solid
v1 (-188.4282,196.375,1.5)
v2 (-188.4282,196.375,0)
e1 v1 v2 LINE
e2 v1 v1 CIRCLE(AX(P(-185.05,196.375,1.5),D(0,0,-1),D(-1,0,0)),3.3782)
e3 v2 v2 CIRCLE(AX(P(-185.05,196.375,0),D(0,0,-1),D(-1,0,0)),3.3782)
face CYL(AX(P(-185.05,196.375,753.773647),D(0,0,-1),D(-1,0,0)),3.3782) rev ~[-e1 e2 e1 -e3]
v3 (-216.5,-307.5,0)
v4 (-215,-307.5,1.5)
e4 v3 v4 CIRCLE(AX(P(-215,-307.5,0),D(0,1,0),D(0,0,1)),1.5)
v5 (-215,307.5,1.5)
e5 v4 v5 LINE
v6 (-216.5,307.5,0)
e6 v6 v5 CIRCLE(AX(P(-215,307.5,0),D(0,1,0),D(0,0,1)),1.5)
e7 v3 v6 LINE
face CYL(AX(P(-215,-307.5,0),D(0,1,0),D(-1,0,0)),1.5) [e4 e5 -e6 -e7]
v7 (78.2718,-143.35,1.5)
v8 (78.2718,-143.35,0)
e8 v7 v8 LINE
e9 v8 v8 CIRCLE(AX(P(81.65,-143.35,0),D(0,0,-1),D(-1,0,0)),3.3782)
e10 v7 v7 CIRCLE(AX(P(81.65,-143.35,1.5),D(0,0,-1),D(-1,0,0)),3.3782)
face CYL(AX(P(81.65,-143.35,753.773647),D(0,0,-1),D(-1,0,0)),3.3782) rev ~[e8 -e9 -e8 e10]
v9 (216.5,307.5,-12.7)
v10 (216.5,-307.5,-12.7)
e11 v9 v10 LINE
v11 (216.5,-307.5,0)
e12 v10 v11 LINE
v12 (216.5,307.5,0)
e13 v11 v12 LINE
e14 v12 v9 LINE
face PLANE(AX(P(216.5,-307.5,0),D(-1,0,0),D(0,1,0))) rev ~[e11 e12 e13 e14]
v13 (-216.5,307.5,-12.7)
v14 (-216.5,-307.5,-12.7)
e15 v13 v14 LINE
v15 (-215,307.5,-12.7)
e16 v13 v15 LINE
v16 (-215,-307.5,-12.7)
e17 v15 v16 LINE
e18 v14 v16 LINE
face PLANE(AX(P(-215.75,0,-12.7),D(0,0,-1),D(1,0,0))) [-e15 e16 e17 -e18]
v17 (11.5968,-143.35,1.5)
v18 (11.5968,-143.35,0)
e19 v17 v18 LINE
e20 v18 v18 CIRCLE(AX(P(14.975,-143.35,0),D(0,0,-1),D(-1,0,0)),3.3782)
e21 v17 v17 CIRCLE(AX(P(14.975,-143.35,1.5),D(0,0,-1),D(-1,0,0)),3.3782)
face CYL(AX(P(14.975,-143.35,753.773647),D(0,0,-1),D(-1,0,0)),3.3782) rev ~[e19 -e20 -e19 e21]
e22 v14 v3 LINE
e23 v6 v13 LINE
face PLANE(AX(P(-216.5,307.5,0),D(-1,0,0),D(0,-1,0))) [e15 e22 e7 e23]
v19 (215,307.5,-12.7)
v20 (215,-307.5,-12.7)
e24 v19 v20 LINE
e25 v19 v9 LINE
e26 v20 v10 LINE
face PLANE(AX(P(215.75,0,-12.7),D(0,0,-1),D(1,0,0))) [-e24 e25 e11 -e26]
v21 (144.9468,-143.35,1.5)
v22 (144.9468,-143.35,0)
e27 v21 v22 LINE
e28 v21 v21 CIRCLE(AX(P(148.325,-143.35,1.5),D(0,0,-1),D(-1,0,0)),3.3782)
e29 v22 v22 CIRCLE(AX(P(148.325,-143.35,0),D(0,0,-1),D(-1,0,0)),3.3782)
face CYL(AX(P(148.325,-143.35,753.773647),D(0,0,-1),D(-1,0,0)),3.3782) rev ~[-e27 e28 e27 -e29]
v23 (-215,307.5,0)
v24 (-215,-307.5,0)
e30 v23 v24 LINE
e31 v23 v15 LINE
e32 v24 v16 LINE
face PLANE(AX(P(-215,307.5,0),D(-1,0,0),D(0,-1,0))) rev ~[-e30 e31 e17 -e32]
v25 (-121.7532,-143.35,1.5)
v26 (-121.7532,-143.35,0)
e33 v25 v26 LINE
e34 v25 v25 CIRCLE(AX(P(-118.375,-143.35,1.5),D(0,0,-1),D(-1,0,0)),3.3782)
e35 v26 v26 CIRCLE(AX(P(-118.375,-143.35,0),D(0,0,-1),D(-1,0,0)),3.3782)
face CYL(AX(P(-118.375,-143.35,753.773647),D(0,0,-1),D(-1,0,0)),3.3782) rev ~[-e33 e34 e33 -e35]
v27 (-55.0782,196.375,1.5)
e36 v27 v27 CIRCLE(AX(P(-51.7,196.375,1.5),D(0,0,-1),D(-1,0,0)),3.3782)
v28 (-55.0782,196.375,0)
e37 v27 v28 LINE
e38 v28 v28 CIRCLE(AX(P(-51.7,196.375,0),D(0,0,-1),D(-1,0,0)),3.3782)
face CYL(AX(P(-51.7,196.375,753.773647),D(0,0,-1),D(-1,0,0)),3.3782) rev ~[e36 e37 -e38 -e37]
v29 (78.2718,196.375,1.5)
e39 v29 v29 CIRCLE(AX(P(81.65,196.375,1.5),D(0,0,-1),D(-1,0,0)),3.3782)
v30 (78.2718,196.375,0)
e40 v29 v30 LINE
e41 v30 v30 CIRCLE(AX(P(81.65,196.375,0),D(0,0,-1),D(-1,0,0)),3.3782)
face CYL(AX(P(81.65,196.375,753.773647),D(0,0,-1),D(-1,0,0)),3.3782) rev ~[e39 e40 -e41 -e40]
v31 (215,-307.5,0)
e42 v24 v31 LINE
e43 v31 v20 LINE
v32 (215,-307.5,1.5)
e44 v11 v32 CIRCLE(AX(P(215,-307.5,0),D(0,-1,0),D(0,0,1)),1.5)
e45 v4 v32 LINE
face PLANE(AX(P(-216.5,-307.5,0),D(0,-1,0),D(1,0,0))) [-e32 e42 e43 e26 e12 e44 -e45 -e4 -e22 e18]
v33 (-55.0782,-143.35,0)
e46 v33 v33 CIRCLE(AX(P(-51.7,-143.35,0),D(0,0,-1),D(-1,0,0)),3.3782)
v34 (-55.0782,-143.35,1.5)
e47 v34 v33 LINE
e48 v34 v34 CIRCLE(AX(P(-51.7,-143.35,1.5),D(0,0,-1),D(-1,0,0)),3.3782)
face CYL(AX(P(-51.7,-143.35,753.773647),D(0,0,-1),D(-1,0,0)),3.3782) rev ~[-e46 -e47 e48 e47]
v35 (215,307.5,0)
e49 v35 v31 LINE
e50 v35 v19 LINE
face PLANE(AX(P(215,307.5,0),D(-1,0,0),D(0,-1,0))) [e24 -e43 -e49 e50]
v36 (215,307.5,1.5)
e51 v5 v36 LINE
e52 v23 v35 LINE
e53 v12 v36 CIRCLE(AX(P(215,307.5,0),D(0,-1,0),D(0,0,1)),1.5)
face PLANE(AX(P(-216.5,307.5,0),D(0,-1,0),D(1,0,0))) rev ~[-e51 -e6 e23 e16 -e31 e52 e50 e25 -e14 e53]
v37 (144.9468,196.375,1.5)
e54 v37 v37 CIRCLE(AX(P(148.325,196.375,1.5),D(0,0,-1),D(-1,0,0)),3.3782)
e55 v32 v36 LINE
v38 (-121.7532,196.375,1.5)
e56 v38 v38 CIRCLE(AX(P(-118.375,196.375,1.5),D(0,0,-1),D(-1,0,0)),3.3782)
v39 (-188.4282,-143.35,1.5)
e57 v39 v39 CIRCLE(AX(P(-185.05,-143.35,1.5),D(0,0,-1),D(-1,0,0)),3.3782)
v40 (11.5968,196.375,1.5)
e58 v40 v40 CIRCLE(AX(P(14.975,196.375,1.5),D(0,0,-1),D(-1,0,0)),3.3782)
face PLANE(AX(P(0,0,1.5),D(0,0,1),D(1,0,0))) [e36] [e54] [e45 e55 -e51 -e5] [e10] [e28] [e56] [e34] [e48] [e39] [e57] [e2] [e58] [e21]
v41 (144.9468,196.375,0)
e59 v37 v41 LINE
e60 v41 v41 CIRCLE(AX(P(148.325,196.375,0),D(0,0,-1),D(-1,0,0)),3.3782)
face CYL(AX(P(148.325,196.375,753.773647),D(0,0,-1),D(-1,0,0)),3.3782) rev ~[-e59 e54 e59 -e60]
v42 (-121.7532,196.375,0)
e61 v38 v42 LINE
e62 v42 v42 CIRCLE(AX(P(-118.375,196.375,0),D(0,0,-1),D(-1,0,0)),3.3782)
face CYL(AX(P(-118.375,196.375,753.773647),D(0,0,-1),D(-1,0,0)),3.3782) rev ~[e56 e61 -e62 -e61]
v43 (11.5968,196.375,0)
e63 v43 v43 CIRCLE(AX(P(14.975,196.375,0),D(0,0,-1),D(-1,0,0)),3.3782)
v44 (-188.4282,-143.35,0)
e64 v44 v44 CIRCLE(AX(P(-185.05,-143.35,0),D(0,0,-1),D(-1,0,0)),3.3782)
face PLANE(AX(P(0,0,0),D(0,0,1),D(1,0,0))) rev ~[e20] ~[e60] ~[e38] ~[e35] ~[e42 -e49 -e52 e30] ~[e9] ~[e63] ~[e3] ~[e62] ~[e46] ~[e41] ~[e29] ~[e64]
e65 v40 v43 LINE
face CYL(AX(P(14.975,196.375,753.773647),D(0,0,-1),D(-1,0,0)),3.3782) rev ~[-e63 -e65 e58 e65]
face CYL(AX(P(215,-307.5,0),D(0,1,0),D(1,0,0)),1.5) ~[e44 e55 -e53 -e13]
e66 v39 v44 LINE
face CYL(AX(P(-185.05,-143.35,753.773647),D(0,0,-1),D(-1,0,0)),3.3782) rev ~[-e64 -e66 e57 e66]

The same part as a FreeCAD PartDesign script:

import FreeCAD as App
import Part
import Sketcher

V = App.Vector
Q = App.Units.Quantity


def edges_at(feature, points):
    """Names of the edges that pass closest to the given points."""
    edges = feature.Shape.Edges
    near = lambda p: min(range(len(edges)), key=lambda i: edges[i].distToShape(Part.Vertex(*p))[0])
    return sorted({f"Edge{near(p) + 1}" for p in points})


def add_polygon(sketch, points):
    """Adds a closed chain of lines whose ends are joined by coincident constraints."""
    first, n = sketch.GeometryCount, len(points)
    for a, b in zip(points, points[1:] + points[:1]):
        sketch.addGeometry(Part.LineSegment(App.Vector(*a, 0), App.Vector(*b, 0)), False)
    for i in range(n):
        sketch.addConstraint(Sketcher.Constraint("Coincident", first + i, 2, first + (i + 1) % n, 1))

doc = App.newDocument("Part")
body = doc.addObject("PartDesign::Body", "Body")

sketch1 = body.newObject("Sketcher::SketchObject", "Sketch")
sketch1.AttachmentSupport = (doc.getObject("XY_Plane"), [""])
sketch1.MapMode = "FlatFace"
add_polygon(sketch1, [(-216, 308), (-216, -308), (216, -308), (216, 308)])
sketch1.addConstraint([
    Sketcher.Constraint("Vertical", 0),
    Sketcher.Constraint("Horizontal", 1),
    Sketcher.Constraint("Vertical", 2),
    Sketcher.Constraint("Horizontal", 3),
    Sketcher.Constraint("Symmetric", 0, 2, 2, 2, -1, 1),
    Sketcher.Constraint("DistanceX", 1, 1, 1, 2, Q("433 mm")),
    Sketcher.Constraint("DistanceY", 0, 2, 0, 1, Q("615 mm")),
])
pad1 = body.newObject("PartDesign::Pad", "Pad")
pad1.Profile = sketch1
pad1.Length = 1.5

sketch2 = body.newObject("Sketcher::SketchObject", "Sketch001")
sketch2.AttachmentSupport = (doc.getObject("XY_Plane"), [""])
sketch2.MapMode = "FlatFace"
add_polygon(sketch2, [(-216.5, -307.5), (-216.5, 307.5), (-215, 307.5), (-215, -307.5)])
add_polygon(sketch2, [(215, -307.5), (215, 307.5), (216.5, 307.5), (216.5, -307.5)])
sketch2.addConstraint([
    Sketcher.Constraint("Vertical", 0),
    Sketcher.Constraint("Horizontal", 1),
    Sketcher.Constraint("Vertical", 2),
    Sketcher.Constraint("Horizontal", 3),
    Sketcher.Constraint("Vertical", 4),
    Sketcher.Constraint("Horizontal", 5),
    Sketcher.Constraint("Vertical", 6),
    Sketcher.Constraint("Horizontal", 7),
    Sketcher.Constraint("Symmetric", 2, 2, 4, 2, -1, 1),
    Sketcher.Constraint("Symmetric", 0, 2, 6, 2, -1, 1),
    Sketcher.Constraint("Horizontal", 1, 2, 4, 2),
    Sketcher.Constraint("DistanceY", 0, 1, 0, 2, Q("615 mm")),
    Sketcher.Constraint("DistanceX", 1, 1, 1, 2, Q("1.5 mm")),
    Sketcher.Constraint("DistanceX", 1, 2, -1, 1, Q("215 mm")),
])
pad2 = body.newObject("PartDesign::Pad", "Pad001")
pad2.Profile = sketch2
pad2.Length = 12.7
pad2.Reversed = True
doc.recompute()

fillet = body.newObject("PartDesign::Fillet", "Fillet")
fillet.Base = (pad2, edges_at(pad2, [(-216.5, 0, 1.5), (216.5, 0, 1.5)]))
fillet.Radius = 1.5

sketch3 = body.newObject("Sketcher::SketchObject", "Sketch002")
sketch3.AttachmentSupport = (doc.getObject("XY_Plane"), [""])
sketch3.MapMode = "FlatFace"
sketch3.AttachmentOffset = App.Placement(V(0, 0, 1.5), App.Rotation())
sketch3.addGeometry([
    Part.Circle(V(-118.4, 196.4, 0), V(0, 0, 1), 3.4),
    Part.Circle(V(-51.7, 196.4, 0), V(0, 0, 1), 3.4),
    Part.Circle(V(15, 196.4, 0), V(0, 0, 1), 3.4),
    Part.Circle(V(81.7, 196.4, 0), V(0, 0, 1), 3.4),
    Part.Circle(V(148.3, 196.4, 0), V(0, 0, 1), 3.4),
    Part.Circle(V(148.3, -143.3, 0), V(0, 0, 1), 3.4),
    Part.Circle(V(81.7, -143.3, 0), V(0, 0, 1), 3.4),
    Part.Circle(V(15, -143.3, 0), V(0, 0, 1), 3.4),
    Part.Circle(V(-51.7, -143.3, 0), V(0, 0, 1), 3.4),
    Part.Circle(V(-118.4, -143.3, 0), V(0, 0, 1), 3.4),
    Part.Circle(V(-185.1, 196.4, 0), V(0, 0, 1), 3.4),
    Part.Circle(V(-185.1, -143.3, 0), V(0, 0, 1), 3.4),
], False)
sketch3.addConstraint([
    Sketcher.Constraint("Equal", 0, 1),
    Sketcher.Constraint("Equal", 1, 2),
    Sketcher.Constraint("Equal", 2, 3),
    Sketcher.Constraint("Equal", 3, 4),
    Sketcher.Constraint("Equal", 4, 5),
    Sketcher.Constraint("Equal", 5, 6),
    Sketcher.Constraint("Equal", 6, 7),
    Sketcher.Constraint("Equal", 7, 8),
    Sketcher.Constraint("Equal", 8, 9),
    Sketcher.Constraint("Equal", 9, 10),
    Sketcher.Constraint("Equal", 10, 11),
    Sketcher.Constraint("Horizontal", 0, 3, 1, 3),
    Sketcher.Constraint("Horizontal", 1, 3, 2, 3),
    Sketcher.Constraint("Horizontal", 2, 3, 3, 3),
    Sketcher.Constraint("Horizontal", 3, 3, 4, 3),
    Sketcher.Constraint("Horizontal", 5, 3, 6, 3),
    Sketcher.Constraint("Horizontal", 6, 3, 7, 3),
    Sketcher.Constraint("Horizontal", 7, 3, 8, 3),
    Sketcher.Constraint("Horizontal", 8, 3, 9, 3),
    Sketcher.Constraint("Horizontal", 4, 3, 10, 3),
    Sketcher.Constraint("Horizontal", 9, 3, 11, 3),
    Sketcher.Constraint("Vertical", 4, 3, 5, 3),
    Sketcher.Constraint("Vertical", 3, 3, 6, 3),
    Sketcher.Constraint("Vertical", 2, 3, 7, 3),
    Sketcher.Constraint("Vertical", 1, 3, 8, 3),
    Sketcher.Constraint("Vertical", 0, 3, 9, 3),
    Sketcher.Constraint("Vertical", 10, 3, 11, 3),
    Sketcher.Constraint("Diameter", 0, Q("6.7564 mm")),
    Sketcher.Constraint("DistanceX", 1, 3, -1, 1, Q("51.7 mm")),
    Sketcher.Constraint("DistanceX", 0, 3, 4, 3, Q("266.7 mm")),
    Sketcher.Constraint("DistanceX", 10, 3, 3, 3, Q("266.7 mm")),
    Sketcher.Constraint("DistanceX", -1, 1, 3, 3, Q("81.65 mm")),
    Sketcher.Constraint("DistanceY", 5, 3, -1, 1, Q("143.35 mm")),
    Sketcher.Constraint("DistanceX", 0, 3, 2, 3, Q("133.35 mm")),
    Sketcher.Constraint("DistanceX", 0, 3, -1, 1, Q("118.375 mm")),
    Sketcher.Constraint("DistanceY", -1, 1, 0, 3, Q("196.375 mm")),
])
doc.recompute()
hole = body.newObject("PartDesign::Hole", "Hole")
hole.Profile = sketch3
hole.ThreadType = "None"
hole.Diameter = 6.7564
hole.DepthType = "ThroughAll"

doc.recompute()
